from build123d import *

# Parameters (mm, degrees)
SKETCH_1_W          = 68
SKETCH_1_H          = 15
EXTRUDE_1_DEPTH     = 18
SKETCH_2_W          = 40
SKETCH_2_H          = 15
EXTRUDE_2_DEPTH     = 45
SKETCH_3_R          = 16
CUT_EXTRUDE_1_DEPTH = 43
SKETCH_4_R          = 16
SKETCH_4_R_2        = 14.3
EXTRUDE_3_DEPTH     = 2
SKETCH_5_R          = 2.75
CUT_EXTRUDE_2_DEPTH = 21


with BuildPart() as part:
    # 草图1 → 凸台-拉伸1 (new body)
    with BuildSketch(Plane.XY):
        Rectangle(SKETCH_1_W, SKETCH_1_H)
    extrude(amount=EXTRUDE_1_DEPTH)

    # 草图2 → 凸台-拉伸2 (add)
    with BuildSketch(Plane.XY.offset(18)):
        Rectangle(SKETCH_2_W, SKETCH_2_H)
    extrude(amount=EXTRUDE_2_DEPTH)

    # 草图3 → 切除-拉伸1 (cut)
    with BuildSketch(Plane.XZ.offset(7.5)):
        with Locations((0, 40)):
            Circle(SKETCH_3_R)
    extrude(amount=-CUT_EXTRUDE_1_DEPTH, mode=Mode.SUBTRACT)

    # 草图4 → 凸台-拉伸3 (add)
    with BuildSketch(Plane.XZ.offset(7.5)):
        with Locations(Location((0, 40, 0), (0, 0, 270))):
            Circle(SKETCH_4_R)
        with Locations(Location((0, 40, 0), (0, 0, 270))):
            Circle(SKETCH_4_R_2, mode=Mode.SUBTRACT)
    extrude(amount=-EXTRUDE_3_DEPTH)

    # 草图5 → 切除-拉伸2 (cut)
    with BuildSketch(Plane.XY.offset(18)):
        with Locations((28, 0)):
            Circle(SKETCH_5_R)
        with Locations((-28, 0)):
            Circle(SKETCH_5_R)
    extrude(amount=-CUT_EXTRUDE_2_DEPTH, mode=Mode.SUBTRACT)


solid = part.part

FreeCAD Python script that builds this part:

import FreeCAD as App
import Part
import Sketcher
from FreeCAD import Vector
Q = App.Units.Quantity


def add_polygon(sketch, points):
    """Adds a closed chain of lines whose ends are joined by coincident constraints."""
    first, n = sketch.GeometryCount, len(points)
    for a, b in zip(points, points[1:] + points[:1]):
        sketch.addGeometry(Part.LineSegment(App.Vector(*a, 0), App.Vector(*b, 0)), False)
    for i in range(n):
        sketch.addConstraint(Sketcher.Constraint("Coincident", first + i, 2, first + (i + 1) % n, 1))

doc = App.newDocument("Part")
body = doc.addObject("PartDesign::Body", "Body")

sketch1 = body.newObject("Sketcher::SketchObject", "Sketch")
sketch1.AttachmentSupport = (doc.getObject("XY_Plane"), [""])
sketch1.MapMode = "FlatFace"
add_polygon(sketch1, [(-34, 7.5), (-34, -7.5), (34, -7.5), (34, 7.5)])
sketch1.addConstraint([
    Sketcher.Constraint("Vertical", 0),
    Sketcher.Constraint("Horizontal", 1),
    Sketcher.Constraint("Vertical", 2),
    Sketcher.Constraint("Horizontal", 3),
    Sketcher.Constraint("Symmetric", 0, 2, 2, 2, -1, 1),
    Sketcher.Constraint("DistanceX", 1, 1, 1, 2, Q("68 mm")),
    Sketcher.Constraint("DistanceY", 0, 2, 0, 1, Q("15 mm")),
])
pad1 = body.newObject("PartDesign::Pad", "Pad")
pad1.Profile = sketch1
pad1.Length = 18

sketch2 = body.newObject("Sketcher::SketchObject", "Sketch001")
sketch2.AttachmentSupport = (doc.getObject("XY_Plane"), [""])
sketch2.MapMode = "FlatFace"
sketch2.AttachmentOffset = App.Placement(Vector(0, 0, 18), App.Rotation())
add_polygon(sketch2, [(-20, 7.5), (-20, -7.5), (20, -7.5), (20, 7.5)])
sketch2.addConstraint([
    Sketcher.Constraint("Vertical", 0),
    Sketcher.Constraint("Horizontal", 1),
    Sketcher.Constraint("Vertical", 2),
    Sketcher.Constraint("Horizontal", 3),
    Sketcher.Constraint("Symmetric", 0, 2, 2, 2, -1, 1),
    Sketcher.Constraint("DistanceX", 1, 1, 1, 2, Q("40 mm")),
    Sketcher.Constraint("DistanceY", 0, 2, 0, 1, Q("15 mm")),
])
pad2 = body.newObject("PartDesign::Pad", "Pad001")
pad2.Profile = sketch2
pad2.Length = 45

sketch3 = body.newObject("Sketcher::SketchObject", "Sketch002")
sketch3.AttachmentSupport = (doc.getObject("XZ_Plane"), [""])
sketch3.MapMode = "FlatFace"
sketch3.AttachmentOffset = App.Placement(Vector(0, 0, 7.5), App.Rotation())
sketch3.addGeometry(Part.Circle(Vector(0, 40, 0), Vector(0, 0, 1), 16), False)
sketch3.addConstraint([
    Sketcher.Constraint("PointOnObject", 0, 3, -2),
    Sketcher.Constraint("Diameter", 0, Q("32 mm")),
    Sketcher.Constraint("DistanceY", -1, 1, 0, 3, Q("40 mm")),
])
pocket1 = body.newObject("PartDesign::Pocket", "Pocket")
pocket1.Profile = sketch3
pocket1.Length = 43

sketch4 = body.newObject("Sketcher::SketchObject", "Sketch003")
sketch4.AttachmentSupport = (doc.getObject("XZ_Plane"), [""])
sketch4.MapMode = "FlatFace"
sketch4.AttachmentOffset = App.Placement(Vector(0, 0, 7.5), App.Rotation())
sketch4.addGeometry([
    Part.Circle(Vector(0, 40, 0), Vector(0, 0, 1), 16),
    Part.Circle(Vector(0, 40, 0), Vector(0, 0, 1), 14.3),
], False)
sketch4.addConstraint([
    Sketcher.Constraint("Coincident", 1, 3, 0, 3),
    Sketcher.Constraint("PointOnObject", 0, 3, -2),
    Sketcher.Constraint("Diameter", 0, Q("32 mm")),
    Sketcher.Constraint("Diameter", 1, Q("28.6 mm")),
    Sketcher.Constraint("DistanceY", -1, 1, 0, 3, Q("40 mm")),
])
pad3 = body.newObject("PartDesign::Pad", "Pad002")
pad3.Profile = sketch4
pad3.Length = 2
pad3.Reversed = True

sketch5 = body.newObject("Sketcher::SketchObject", "Sketch004")
sketch5.AttachmentSupport = (doc.getObject("XY_Plane"), [""])
sketch5.MapMode = "FlatFace"
sketch5.AttachmentOffset = App.Placement(Vector(0, 0, 18), App.Rotation())
sketch5.addGeometry([
    Part.Circle(Vector(28, 0, 0), Vector(0, 0, 1), 2.75),
    Part.Circle(Vector(-28, 0, 0), Vector(0, 0, 1), 2.75),
], False)
sketch5.addConstraint([
    Sketcher.Constraint("Equal", 0, 1),
    Sketcher.Constraint("Symmetric", 0, 3, 1, 3, -1, 1),
    Sketcher.Constraint("PointOnObject", 0, 3, -1),
    Sketcher.Constraint("Diameter", 0, Q("5.5 mm")),
    Sketcher.Constraint("DistanceX", -1, 1, 0, 3, Q("28 mm")),
])
pocket2 = body.newObject("PartDesign::Pocket", "Pocket001")
pocket2.Profile = sketch5
pocket2.Length = 21

doc.recompute()
